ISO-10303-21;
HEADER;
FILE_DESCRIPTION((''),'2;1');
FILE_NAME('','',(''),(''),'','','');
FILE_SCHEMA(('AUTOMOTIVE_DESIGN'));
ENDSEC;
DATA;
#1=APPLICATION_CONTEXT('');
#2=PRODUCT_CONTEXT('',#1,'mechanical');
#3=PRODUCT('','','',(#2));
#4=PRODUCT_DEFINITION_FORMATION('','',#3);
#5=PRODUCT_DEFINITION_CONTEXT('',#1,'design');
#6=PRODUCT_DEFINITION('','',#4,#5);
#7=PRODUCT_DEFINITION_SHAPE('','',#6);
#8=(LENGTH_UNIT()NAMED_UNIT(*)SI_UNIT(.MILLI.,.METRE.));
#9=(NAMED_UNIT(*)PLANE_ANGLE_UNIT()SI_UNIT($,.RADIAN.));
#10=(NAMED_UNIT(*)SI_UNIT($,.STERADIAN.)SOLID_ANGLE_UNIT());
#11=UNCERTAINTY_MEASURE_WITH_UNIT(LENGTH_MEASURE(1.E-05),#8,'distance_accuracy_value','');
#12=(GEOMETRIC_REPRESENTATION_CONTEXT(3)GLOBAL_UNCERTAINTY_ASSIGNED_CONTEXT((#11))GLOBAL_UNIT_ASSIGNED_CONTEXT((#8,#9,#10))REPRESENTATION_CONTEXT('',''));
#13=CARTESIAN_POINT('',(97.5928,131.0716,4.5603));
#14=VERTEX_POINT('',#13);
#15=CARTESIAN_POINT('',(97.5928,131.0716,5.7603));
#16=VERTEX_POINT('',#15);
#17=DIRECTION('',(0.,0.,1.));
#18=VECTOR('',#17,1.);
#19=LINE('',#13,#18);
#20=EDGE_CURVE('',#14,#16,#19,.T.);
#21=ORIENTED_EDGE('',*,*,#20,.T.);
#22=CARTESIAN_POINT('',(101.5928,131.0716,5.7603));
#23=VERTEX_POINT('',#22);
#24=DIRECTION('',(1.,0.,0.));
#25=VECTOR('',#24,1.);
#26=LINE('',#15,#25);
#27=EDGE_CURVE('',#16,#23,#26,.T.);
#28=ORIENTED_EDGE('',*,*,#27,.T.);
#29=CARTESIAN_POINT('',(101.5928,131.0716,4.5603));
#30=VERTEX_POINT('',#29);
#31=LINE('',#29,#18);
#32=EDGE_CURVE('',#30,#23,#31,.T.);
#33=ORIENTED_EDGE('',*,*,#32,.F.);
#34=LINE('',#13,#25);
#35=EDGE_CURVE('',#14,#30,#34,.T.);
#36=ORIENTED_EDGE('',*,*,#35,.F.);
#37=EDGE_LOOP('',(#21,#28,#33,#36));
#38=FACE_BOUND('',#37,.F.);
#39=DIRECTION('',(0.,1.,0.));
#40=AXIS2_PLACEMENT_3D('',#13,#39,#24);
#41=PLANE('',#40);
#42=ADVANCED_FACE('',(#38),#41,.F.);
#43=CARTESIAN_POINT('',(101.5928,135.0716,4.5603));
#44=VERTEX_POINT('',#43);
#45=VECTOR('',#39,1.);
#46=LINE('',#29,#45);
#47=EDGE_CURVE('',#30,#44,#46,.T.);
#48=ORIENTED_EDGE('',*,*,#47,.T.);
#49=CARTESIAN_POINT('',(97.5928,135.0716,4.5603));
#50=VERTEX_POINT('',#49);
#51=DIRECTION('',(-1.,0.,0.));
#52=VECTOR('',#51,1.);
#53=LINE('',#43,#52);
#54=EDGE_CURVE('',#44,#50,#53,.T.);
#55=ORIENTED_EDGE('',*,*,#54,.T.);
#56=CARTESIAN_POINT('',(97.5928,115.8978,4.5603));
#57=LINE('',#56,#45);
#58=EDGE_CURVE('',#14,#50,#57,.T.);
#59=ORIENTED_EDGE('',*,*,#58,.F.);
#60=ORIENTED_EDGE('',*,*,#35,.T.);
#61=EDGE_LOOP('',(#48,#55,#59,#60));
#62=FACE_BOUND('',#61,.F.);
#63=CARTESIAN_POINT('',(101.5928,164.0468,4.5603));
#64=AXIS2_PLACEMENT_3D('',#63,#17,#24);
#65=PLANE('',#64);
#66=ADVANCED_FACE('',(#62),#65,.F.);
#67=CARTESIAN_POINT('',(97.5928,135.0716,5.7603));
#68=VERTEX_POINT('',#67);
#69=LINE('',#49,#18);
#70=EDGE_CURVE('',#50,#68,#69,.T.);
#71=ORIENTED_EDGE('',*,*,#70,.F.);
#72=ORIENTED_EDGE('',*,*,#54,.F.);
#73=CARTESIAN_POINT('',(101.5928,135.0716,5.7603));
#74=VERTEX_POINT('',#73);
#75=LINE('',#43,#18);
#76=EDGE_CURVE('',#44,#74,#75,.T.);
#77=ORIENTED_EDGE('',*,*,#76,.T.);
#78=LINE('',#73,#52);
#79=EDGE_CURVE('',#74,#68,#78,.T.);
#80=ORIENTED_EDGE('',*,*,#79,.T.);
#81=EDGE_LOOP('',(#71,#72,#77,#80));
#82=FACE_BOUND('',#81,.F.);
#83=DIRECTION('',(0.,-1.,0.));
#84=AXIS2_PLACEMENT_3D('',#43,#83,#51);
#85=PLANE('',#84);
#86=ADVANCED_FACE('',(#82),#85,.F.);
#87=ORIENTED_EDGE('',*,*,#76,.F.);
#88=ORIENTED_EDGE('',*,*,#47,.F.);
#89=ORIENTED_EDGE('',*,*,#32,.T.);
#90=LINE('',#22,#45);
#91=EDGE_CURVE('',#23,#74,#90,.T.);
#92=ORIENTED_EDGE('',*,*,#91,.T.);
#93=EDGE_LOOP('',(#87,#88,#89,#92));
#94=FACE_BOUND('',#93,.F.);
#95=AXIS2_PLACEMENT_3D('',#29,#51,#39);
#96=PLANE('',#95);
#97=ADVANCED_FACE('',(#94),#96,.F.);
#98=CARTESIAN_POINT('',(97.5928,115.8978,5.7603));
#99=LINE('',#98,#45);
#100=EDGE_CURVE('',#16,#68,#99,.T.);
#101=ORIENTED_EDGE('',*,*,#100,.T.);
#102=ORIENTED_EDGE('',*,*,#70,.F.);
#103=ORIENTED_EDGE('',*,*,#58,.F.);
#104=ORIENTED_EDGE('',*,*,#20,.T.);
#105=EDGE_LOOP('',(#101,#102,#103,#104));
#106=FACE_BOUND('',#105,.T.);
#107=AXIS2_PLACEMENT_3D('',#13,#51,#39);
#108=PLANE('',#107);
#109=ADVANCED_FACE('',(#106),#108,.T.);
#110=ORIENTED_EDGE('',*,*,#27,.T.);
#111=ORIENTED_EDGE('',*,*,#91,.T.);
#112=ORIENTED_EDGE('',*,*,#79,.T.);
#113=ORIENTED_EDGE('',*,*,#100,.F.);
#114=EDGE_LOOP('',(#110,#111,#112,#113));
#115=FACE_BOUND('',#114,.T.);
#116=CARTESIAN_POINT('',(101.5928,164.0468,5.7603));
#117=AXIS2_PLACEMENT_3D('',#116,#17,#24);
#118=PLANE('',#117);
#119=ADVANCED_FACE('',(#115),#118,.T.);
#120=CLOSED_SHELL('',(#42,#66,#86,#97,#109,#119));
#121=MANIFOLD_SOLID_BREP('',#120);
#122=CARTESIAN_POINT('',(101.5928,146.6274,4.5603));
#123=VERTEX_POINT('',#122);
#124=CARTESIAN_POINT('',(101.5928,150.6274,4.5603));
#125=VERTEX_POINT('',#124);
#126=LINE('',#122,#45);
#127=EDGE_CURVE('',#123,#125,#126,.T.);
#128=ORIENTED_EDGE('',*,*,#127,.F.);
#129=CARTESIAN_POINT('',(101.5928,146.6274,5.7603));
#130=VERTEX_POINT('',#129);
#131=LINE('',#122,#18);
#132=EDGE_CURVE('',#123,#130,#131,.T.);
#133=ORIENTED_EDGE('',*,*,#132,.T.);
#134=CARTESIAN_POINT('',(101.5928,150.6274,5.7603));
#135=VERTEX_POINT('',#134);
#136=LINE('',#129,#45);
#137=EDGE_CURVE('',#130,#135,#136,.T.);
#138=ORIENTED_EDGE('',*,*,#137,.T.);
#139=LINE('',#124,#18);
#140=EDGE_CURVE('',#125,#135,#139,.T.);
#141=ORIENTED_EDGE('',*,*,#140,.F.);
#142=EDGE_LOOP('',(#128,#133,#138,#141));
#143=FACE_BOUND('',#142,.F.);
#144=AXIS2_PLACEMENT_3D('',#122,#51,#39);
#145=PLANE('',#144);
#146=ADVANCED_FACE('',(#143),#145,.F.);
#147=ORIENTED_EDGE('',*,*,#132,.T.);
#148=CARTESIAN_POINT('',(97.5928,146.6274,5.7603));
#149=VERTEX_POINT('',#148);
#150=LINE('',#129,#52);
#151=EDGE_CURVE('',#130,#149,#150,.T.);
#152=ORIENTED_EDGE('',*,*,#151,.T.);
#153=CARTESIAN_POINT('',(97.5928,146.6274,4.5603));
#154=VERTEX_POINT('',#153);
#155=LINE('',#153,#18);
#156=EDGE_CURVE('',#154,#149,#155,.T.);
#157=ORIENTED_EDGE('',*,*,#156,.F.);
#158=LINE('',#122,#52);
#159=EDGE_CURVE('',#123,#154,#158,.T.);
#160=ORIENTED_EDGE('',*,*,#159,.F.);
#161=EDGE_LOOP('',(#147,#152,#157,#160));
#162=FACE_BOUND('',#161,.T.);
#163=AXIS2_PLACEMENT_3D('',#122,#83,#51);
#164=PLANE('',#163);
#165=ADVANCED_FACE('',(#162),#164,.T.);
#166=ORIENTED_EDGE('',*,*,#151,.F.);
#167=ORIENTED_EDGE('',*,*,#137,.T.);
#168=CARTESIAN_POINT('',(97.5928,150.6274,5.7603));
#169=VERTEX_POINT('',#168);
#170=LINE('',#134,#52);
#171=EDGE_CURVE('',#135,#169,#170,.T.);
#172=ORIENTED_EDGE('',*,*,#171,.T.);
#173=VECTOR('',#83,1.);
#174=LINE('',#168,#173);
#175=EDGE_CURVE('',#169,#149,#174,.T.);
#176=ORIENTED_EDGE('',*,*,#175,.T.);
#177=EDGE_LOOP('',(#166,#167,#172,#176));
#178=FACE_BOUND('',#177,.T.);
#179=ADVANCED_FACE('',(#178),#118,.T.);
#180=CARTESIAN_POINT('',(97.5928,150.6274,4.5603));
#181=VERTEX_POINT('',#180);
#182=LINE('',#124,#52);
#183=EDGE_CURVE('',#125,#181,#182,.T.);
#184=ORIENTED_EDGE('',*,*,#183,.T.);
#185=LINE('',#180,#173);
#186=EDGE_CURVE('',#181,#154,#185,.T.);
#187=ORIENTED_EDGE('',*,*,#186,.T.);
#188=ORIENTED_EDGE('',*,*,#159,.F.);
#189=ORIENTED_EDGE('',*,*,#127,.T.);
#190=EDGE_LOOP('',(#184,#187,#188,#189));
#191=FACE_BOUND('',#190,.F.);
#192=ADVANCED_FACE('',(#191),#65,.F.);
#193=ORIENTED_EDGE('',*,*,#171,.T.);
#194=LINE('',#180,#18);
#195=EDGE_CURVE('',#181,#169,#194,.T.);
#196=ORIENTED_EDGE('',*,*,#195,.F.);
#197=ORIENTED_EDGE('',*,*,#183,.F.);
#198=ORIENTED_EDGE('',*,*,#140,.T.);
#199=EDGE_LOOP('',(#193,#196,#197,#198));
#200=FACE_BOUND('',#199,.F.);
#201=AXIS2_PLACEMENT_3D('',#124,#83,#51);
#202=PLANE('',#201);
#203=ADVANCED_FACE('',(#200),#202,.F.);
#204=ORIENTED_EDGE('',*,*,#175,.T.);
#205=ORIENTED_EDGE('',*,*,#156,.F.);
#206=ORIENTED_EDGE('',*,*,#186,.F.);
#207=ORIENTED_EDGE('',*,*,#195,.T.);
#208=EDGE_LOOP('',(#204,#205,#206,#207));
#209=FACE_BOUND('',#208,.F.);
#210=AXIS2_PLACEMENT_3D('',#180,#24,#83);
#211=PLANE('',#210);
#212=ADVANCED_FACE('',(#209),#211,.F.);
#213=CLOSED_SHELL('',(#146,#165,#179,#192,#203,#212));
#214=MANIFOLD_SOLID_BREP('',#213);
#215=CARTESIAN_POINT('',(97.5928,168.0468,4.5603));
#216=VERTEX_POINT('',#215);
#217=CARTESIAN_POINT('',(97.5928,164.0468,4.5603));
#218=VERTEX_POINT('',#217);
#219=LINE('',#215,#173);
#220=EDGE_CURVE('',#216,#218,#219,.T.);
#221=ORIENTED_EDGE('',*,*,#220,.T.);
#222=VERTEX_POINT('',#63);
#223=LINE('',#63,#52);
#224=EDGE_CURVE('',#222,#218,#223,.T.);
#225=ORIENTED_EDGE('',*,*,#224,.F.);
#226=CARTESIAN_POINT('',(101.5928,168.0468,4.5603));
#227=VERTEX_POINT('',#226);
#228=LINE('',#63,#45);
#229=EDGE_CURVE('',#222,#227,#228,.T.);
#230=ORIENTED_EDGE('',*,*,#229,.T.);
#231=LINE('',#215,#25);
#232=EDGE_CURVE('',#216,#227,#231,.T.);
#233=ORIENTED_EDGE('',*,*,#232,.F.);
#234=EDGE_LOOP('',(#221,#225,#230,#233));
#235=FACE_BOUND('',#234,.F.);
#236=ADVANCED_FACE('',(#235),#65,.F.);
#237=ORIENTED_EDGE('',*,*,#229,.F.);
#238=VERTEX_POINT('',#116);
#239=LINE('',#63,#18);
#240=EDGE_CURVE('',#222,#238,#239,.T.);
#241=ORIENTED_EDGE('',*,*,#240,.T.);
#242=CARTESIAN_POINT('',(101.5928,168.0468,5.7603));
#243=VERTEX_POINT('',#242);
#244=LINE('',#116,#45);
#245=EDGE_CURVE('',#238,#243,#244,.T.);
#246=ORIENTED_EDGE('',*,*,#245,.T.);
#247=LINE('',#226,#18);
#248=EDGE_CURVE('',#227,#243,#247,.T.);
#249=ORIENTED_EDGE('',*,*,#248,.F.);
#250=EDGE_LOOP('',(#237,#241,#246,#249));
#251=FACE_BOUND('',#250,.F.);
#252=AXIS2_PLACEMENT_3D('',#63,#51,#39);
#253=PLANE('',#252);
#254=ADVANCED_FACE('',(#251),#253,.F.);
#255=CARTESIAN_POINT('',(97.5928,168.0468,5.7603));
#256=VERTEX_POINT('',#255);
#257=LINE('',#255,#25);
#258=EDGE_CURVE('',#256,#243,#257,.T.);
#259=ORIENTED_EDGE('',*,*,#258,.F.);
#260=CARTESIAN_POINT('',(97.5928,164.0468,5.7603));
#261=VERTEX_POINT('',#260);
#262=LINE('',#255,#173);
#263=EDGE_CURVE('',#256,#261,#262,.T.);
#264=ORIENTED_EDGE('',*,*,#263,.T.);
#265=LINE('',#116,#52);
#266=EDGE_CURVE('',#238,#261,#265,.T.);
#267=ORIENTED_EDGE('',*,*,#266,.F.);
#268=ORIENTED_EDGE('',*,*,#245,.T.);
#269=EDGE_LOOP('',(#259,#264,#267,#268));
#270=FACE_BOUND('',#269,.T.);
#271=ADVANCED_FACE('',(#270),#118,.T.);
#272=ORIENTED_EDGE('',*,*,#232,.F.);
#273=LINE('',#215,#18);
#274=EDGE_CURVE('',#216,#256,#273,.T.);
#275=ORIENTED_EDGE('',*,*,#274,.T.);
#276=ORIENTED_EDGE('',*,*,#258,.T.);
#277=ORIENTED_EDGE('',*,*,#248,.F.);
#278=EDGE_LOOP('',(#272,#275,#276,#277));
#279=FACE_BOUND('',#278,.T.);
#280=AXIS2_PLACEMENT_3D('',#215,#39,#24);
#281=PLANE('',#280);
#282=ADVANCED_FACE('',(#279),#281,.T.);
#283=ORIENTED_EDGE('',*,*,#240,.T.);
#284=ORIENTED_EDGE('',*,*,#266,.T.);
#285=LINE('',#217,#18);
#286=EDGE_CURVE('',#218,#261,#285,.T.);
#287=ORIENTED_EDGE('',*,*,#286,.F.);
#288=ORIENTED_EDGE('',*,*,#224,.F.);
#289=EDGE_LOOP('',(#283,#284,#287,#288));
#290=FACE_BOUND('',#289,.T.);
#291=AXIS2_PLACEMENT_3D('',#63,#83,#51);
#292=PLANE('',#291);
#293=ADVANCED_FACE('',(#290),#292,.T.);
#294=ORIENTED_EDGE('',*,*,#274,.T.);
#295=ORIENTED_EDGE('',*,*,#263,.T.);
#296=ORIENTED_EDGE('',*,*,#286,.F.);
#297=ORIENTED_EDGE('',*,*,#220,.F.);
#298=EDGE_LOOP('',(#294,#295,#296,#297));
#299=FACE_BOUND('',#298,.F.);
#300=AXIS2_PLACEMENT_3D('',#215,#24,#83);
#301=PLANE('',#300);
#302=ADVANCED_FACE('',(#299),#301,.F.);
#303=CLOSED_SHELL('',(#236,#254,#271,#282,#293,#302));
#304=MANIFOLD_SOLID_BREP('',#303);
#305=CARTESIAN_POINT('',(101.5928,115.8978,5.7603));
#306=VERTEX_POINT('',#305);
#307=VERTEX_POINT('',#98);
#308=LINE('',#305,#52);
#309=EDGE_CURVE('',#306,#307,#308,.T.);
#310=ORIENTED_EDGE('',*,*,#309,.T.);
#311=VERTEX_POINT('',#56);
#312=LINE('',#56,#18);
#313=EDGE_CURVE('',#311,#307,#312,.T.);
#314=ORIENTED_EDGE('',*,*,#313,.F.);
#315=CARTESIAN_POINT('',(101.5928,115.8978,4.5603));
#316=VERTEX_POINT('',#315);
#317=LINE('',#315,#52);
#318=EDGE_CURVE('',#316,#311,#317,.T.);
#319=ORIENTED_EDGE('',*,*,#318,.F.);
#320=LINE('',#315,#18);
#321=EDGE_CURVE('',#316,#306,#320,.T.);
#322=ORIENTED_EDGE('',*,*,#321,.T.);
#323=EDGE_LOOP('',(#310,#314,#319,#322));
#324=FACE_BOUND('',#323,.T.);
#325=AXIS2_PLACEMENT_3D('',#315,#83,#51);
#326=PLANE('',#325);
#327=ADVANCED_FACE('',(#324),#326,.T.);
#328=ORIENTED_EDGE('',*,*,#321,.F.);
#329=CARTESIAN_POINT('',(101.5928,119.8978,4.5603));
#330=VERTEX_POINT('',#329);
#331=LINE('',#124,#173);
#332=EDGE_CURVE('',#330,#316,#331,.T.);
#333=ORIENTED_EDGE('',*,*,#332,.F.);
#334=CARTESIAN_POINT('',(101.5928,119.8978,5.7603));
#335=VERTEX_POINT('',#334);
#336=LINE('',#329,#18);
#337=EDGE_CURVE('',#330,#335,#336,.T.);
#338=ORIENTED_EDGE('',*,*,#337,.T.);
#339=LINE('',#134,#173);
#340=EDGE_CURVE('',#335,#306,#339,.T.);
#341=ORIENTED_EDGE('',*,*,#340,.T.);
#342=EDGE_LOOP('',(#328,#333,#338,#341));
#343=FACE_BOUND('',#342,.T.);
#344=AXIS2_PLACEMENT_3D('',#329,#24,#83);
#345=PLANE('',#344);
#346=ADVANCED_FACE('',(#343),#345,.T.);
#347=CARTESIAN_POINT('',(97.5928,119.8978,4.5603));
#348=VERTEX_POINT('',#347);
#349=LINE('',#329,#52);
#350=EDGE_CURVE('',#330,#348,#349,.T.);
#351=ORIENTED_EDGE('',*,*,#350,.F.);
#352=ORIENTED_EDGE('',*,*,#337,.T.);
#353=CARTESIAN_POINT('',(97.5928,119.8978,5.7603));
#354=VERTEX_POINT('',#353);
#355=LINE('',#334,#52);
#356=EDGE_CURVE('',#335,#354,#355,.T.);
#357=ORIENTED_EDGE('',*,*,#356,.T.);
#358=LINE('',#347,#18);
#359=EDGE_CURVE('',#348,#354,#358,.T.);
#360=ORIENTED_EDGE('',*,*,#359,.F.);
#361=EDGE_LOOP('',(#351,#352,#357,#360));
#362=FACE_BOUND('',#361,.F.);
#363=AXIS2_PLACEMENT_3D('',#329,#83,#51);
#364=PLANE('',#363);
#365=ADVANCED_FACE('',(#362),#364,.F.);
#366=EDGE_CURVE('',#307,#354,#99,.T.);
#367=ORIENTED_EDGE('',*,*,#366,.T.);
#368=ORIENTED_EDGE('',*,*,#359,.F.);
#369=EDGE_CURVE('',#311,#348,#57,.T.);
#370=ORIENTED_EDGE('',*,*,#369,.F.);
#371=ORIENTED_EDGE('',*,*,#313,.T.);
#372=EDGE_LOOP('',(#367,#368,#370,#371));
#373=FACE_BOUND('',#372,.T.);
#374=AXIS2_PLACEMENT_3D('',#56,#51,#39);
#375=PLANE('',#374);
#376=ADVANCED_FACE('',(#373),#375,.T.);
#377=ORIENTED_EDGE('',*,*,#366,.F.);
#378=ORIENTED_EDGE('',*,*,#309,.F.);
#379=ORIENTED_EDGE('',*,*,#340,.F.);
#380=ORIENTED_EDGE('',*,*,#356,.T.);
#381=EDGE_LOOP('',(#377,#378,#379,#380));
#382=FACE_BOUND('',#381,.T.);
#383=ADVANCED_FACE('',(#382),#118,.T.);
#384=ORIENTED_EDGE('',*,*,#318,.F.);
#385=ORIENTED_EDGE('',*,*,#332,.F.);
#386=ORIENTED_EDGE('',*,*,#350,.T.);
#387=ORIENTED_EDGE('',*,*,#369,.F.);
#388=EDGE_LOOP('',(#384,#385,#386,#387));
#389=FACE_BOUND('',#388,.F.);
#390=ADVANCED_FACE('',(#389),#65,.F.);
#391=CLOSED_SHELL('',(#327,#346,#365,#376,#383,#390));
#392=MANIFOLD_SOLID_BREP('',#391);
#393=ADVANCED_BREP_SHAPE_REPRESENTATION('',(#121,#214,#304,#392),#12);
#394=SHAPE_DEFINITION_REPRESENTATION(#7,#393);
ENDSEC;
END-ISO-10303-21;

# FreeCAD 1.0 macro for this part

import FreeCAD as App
import Part
import Sketcher

V = App.Vector
Q = App.Units.Quantity

doc = App.newDocument("Part")
body = doc.addObject("PartDesign::Body", "Body")
body.AllowCompound = True

sketch1 = body.newObject("Sketcher::SketchObject", "Sketch")
sketch1.AttachmentSupport = (doc.getObject("XY_Plane"), [""])
sketch1.MapMode = "FlatFace"
sketch1.AttachmentOffset = App.Placement(V(0, 0, 4.5603), App.Rotation())
sketch1.addGeometry(Part.LineSegment(V(97.6, 164, 0), V(101.6, 164, 0)), False)
sketch1.addGeometry(Part.LineSegment(V(101.6, 164, 0), V(101.6, 168, 0)), False)
sketch1.addGeometry(Part.LineSegment(V(101.6, 168, 0), V(97.6, 168, 0)), False)
sketch1.addGeometry(Part.LineSegment(V(97.6, 168, 0), V(97.6, 164, 0)), False)
sketch1.addGeometry(Part.LineSegment(V(97.6, 146.6, 0), V(101.6, 146.6, 0)), False)
sketch1.addGeometry(Part.LineSegment(V(101.6, 146.6, 0), V(101.6, 150.6, 0)), False)
sketch1.addGeometry(Part.LineSegment(V(101.6, 150.6, 0), V(97.6, 150.6, 0)), False)
sketch1.addGeometry(Part.LineSegment(V(97.6, 150.6, 0), V(97.6, 146.6, 0)), False)
sketch1.addGeometry(Part.LineSegment(V(101.6, 131.1, 0), V(101.6, 135.1, 0)), False)
sketch1.addGeometry(Part.LineSegment(V(101.6, 135.1, 0), V(97.6, 135.1, 0)), False)
sketch1.addGeometry(Part.LineSegment(V(97.6, 135.1, 0), V(97.6, 131.1, 0)), False)
sketch1.addGeometry(Part.LineSegment(V(97.6, 131.1, 0), V(101.6, 131.1, 0)), False)
sketch1.addGeometry(Part.LineSegment(V(101.6, 115.9, 0), V(101.6, 119.9, 0)), False)
sketch1.addGeometry(Part.LineSegment(V(101.6, 119.9, 0), V(97.6, 119.9, 0)), False)
sketch1.addGeometry(Part.LineSegment(V(97.6, 119.9, 0), V(97.6, 115.9, 0)), False)
sketch1.addGeometry(Part.LineSegment(V(97.6, 115.9, 0), V(101.6, 115.9, 0)), False)
sketch1.addConstraint(Sketcher.Constraint("Coincident", 0, 2, 1, 1))
sketch1.addConstraint(Sketcher.Constraint("Coincident", 1, 2, 2, 1))
sketch1.addConstraint(Sketcher.Constraint("Coincident", 2, 2, 3, 1))
sketch1.addConstraint(Sketcher.Constraint("Coincident", 3, 2, 0, 1))
sketch1.addConstraint(Sketcher.Constraint("Coincident", 4, 2, 5, 1))
sketch1.addConstraint(Sketcher.Constraint("Coincident", 5, 2, 6, 1))
sketch1.addConstraint(Sketcher.Constraint("Coincident", 6, 2, 7, 1))
sketch1.addConstraint(Sketcher.Constraint("Coincident", 7, 2, 4, 1))
sketch1.addConstraint(Sketcher.Constraint("Coincident", 8, 2, 9, 1))
sketch1.addConstraint(Sketcher.Constraint("Coincident", 9, 2, 10, 1))
sketch1.addConstraint(Sketcher.Constraint("Coincident", 10, 2, 11, 1))
sketch1.addConstraint(Sketcher.Constraint("Coincident", 11, 2, 8, 1))
sketch1.addConstraint(Sketcher.Constraint("Coincident", 12, 2, 13, 1))
sketch1.addConstraint(Sketcher.Constraint("Coincident", 13, 2, 14, 1))
sketch1.addConstraint(Sketcher.Constraint("Coincident", 14, 2, 15, 1))
sketch1.addConstraint(Sketcher.Constraint("Coincident", 15, 2, 12, 1))
sketch1.addConstraint(Sketcher.Constraint("Horizontal", 0))
sketch1.addConstraint(Sketcher.Constraint("Vertical", 1))
sketch1.addConstraint(Sketcher.Constraint("Horizontal", 2))
sketch1.addConstraint(Sketcher.Constraint("Vertical", 3))
sketch1.addConstraint(Sketcher.Constraint("Horizontal", 4))
sketch1.addConstraint(Sketcher.Constraint("Vertical", 5))
sketch1.addConstraint(Sketcher.Constraint("Horizontal", 6))
sketch1.addConstraint(Sketcher.Constraint("Vertical", 7))
sketch1.addConstraint(Sketcher.Constraint("Vertical", 8))
sketch1.addConstraint(Sketcher.Constraint("Horizontal", 9))
sketch1.addConstraint(Sketcher.Constraint("Vertical", 10))
sketch1.addConstraint(Sketcher.Constraint("Horizontal", 11))
sketch1.addConstraint(Sketcher.Constraint("Vertical", 12))
sketch1.addConstraint(Sketcher.Constraint("Horizontal", 13))
sketch1.addConstraint(Sketcher.Constraint("Vertical", 14))
sketch1.addConstraint(Sketcher.Constraint("Horizontal", 15))
sketch1.addConstraint(Sketcher.Constraint("Vertical", 1, 2, 4, 2))
sketch1.addConstraint(Sketcher.Constraint("Vertical", 3, 2, 6, 2))
sketch1.addConstraint(Sketcher.Constraint("Vertical", 5, 2, 8, 2))
sketch1.addConstraint(Sketcher.Constraint("Vertical", 7, 2, 9, 2))
sketch1.addConstraint(Sketcher.Constraint("Vertical", 11, 2, 12, 2))
sketch1.addConstraint(Sketcher.Constraint("Vertical", 10, 2, 13, 2))
sketch1.addConstraint(Sketcher.Constraint("Equal", 15, 1))
sketch1.addConstraint(Sketcher.Constraint("Equal", 3, 5))
sketch1.addConstraint(Sketcher.Constraint("Equal", 7, 8))
sketch1.addConstraint(Sketcher.Constraint("Equal", 10, 12))
sketch1.addConstraint(Sketcher.Constraint("DistanceX", 0, 1, 0, 2, Q("4 mm")))
sketch1.addConstraint(Sketcher.Constraint("DistanceX", -1, 1, 0, 2, Q("101.5928 mm")))
sketch1.addConstraint(Sketcher.Constraint("DistanceY", -1, 1, 0, 2, Q("164.0468 mm")))
sketch1.addConstraint(Sketcher.Constraint("DistanceY", -1, 1, 4, 2, Q("146.6274 mm")))
sketch1.addConstraint(Sketcher.Constraint("DistanceY", -1, 1, 8, 2, Q("135.0716 mm")))
sketch1.addConstraint(Sketcher.Constraint("DistanceY", -1, 1, 12, 2, Q("119.8978 mm")))
pad1 = body.newObject("PartDesign::Pad", "Pad")
pad1.Profile = sketch1
pad1.Length = 1.2

doc.recompute()
